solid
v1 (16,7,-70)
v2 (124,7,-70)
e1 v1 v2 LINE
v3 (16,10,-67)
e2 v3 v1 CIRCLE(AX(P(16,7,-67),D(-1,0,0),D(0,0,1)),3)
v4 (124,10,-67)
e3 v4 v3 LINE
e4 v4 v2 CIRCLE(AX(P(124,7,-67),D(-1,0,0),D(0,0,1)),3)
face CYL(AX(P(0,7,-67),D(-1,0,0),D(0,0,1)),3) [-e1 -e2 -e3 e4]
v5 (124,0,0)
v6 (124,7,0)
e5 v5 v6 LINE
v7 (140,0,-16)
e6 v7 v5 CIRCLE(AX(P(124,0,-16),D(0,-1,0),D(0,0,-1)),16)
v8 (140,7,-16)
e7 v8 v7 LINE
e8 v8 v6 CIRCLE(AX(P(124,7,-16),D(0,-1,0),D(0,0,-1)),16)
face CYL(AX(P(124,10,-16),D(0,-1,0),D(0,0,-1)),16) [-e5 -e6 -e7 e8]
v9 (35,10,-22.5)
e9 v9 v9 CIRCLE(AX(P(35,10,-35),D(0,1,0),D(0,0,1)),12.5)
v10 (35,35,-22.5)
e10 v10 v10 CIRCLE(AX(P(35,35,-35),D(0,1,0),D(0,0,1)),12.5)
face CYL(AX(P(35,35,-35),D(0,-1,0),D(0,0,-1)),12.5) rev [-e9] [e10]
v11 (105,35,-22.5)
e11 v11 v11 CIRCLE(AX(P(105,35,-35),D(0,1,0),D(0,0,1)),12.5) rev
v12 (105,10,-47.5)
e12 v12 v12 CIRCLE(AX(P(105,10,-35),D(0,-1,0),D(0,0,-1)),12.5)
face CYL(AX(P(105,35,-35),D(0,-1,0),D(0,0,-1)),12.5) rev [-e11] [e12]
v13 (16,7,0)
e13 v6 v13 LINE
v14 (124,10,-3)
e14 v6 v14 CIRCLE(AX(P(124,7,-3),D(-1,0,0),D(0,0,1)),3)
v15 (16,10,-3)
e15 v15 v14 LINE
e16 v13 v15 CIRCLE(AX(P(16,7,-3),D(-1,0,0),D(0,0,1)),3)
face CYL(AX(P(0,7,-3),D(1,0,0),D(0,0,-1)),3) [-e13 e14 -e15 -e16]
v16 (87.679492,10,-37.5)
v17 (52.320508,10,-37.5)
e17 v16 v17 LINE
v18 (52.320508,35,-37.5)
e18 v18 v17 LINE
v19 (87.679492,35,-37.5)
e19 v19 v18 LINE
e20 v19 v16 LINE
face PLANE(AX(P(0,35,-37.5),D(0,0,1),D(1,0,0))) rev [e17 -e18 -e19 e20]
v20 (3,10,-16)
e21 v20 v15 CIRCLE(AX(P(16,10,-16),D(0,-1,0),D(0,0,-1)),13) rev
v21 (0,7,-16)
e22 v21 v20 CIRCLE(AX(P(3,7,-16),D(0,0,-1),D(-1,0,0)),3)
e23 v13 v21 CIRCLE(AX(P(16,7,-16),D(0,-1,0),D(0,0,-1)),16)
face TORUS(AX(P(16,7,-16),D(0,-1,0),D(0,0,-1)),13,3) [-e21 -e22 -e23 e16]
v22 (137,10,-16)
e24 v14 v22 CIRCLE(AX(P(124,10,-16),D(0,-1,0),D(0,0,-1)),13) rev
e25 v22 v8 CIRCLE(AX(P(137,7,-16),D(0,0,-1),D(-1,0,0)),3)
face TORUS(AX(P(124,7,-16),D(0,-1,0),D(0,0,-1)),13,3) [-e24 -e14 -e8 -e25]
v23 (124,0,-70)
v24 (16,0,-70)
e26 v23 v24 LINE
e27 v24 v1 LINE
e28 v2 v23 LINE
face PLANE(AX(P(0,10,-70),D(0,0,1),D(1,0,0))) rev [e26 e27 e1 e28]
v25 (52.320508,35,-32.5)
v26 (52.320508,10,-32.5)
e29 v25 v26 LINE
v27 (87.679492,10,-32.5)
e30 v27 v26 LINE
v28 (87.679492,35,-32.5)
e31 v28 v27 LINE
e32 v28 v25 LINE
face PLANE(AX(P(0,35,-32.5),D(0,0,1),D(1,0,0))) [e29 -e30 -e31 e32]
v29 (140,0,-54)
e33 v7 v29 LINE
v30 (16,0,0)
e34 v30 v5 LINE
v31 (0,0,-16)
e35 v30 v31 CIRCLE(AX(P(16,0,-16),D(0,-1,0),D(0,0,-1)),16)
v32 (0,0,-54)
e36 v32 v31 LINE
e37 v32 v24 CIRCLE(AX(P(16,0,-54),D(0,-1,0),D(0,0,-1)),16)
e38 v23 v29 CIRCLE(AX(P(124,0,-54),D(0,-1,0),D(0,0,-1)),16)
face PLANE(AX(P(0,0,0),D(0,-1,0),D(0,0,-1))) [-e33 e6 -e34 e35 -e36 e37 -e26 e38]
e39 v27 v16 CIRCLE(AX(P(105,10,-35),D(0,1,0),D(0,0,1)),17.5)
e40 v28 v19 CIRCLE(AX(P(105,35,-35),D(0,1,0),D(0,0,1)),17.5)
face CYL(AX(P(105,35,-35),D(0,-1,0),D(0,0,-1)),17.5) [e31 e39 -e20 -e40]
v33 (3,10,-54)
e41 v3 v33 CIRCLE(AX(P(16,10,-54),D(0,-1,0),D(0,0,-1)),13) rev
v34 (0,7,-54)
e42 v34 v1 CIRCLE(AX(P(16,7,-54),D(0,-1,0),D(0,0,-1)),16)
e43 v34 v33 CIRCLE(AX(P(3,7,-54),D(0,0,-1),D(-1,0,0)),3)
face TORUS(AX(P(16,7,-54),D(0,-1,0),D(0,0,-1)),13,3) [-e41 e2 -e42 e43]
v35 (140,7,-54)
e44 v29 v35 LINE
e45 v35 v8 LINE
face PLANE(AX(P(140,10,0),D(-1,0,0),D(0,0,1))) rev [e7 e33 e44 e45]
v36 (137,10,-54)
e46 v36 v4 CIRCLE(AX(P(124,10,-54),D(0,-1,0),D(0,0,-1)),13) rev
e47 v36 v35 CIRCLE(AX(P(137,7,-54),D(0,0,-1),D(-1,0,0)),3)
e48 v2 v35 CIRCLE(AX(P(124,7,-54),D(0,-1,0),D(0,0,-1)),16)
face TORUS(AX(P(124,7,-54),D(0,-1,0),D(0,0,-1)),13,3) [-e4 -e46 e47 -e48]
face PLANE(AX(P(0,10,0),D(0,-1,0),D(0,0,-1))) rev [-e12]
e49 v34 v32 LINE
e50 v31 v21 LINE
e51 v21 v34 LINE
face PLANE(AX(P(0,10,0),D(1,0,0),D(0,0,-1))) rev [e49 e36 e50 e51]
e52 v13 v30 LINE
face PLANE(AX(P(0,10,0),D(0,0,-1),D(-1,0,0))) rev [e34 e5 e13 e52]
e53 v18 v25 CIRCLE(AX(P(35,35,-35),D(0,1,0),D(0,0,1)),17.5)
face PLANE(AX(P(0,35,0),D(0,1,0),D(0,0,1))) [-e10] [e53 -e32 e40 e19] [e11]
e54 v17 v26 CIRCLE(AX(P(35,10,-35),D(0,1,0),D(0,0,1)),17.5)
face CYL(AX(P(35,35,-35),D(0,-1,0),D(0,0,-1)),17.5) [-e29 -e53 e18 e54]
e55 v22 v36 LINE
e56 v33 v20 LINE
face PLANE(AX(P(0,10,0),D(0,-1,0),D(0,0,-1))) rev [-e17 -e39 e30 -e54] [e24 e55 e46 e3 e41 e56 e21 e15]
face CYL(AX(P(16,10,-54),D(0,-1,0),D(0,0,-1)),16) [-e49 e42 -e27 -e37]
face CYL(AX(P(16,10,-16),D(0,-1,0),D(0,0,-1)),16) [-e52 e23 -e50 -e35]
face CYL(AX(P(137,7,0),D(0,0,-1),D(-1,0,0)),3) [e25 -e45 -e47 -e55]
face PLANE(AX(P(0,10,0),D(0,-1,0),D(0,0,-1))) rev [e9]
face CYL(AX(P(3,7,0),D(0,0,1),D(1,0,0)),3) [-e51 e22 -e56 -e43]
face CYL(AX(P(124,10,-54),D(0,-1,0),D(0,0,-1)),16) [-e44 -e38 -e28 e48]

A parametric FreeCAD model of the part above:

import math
import FreeCAD as App
import Part
import Sketcher

V = App.Vector
Q = App.Units.Quantity


def edges_at(feature, points):
    """Names of the edges that pass closest to the given points."""
    edges = feature.Shape.Edges
    near = lambda p: min(range(len(edges)), key=lambda i: edges[i].distToShape(Part.Vertex(*p))[0])
    return sorted({f"Edge{near(p) + 1}" for p in points})

doc = App.newDocument("Part")
body = doc.addObject("PartDesign::Body", "Body")

# Sketch on XZ plane
sketch1 = body.newObject("Sketcher::SketchObject", "Sketch")
sketch1.AttachmentSupport = (doc.getObject("XZ_Plane"), [""])
sketch1.MapMode = "FlatFace"
sketch1.addGeometry([
    Part.LineSegment(V(0, -70, 0), V(0, 0, 0)),
    Part.LineSegment(V(0, 0, 0), V(140, 0, 0)),
    Part.LineSegment(V(140, 0, 0), V(140, -70, 0)),
    Part.LineSegment(V(140, -70, 0), V(0, -70, 0)),
], False)
sketch1.addConstraint([
    Sketcher.Constraint("Coincident", 0, 2, 1, 1),
    Sketcher.Constraint("Coincident", 1, 2, 2, 1),
    Sketcher.Constraint("Coincident", 2, 2, 3, 1),
    Sketcher.Constraint("Coincident", 3, 2, 0, 1),
    Sketcher.Constraint("Vertical", 0),
    Sketcher.Constraint("Horizontal", 1),
    Sketcher.Constraint("Vertical", 2),
    Sketcher.Constraint("Horizontal", 3),
    Sketcher.Constraint("Coincident", 0, 2, -1, 1),
    Sketcher.Constraint("DistanceX", 1, 1, 1, 2, Q("140 mm")),
    Sketcher.Constraint("DistanceY", 0, 1, 0, 2, Q("70 mm")),
])
pad1 = body.newObject("PartDesign::Pad", "Pad")
pad1.Profile = sketch1
pad1.Length = 10
pad1.Reversed = True

# Sketch on XZ plane
sketch2 = body.newObject("Sketcher::SketchObject", "Sketch001")
sketch2.AttachmentSupport = (doc.getObject("XZ_Plane"), [""])
sketch2.MapMode = "FlatFace"
sketch2.AttachmentOffset = App.Placement(V(0, 0, -10), App.Rotation())
sketch2.addGeometry([
    Part.LineSegment(V(52.320508, -32.5, 0), V(87.679492, -32.5, 0)),  # 0
    Part.ArcOfCircle(Part.Circle(V(105, -35, 0), V(0, 0, 1), 17.5), math.radians(0), math.radians(171.786789)),  # 1
    Part.ArcOfCircle(Part.Circle(V(105, -35, 0), V(0, 0, 1), 17.5), math.radians(-171.786789), math.radians(0)),  # 2
    Part.LineSegment(V(87.679492, -37.5, 0), V(52.320508, -37.5, 0)),  # 3
    Part.ArcOfCircle(Part.Circle(V(35, -35, 0), V(0, 0, 1), 17.5), math.radians(8.213211), math.radians(351.786789)),  # 4
    Part.ArcOfCircle(Part.Circle(V(35, -35, 0), V(0, 0, 1), 12.5), math.radians(0), math.radians(11.536959)),  # 5
    Part.ArcOfCircle(Part.Circle(V(35, -35, 0), V(0, 0, 1), 12.5), math.radians(11.536959), math.radians(348.463041)),  # 6
    Part.ArcOfCircle(Part.Circle(V(35, -35, 0), V(0, 0, 1), 12.5), math.radians(-11.536959), math.radians(0)),  # 7
    Part.ArcOfCircle(Part.Circle(V(105, -35, 0), V(0, 0, 1), 12.5), math.radians(168.463041), math.radians(191.536959)),  # 8
    Part.ArcOfCircle(Part.Circle(V(105, -35, 0), V(0, 0, 1), 12.5), math.radians(-168.463041), math.radians(0)),  # 9
    Part.ArcOfCircle(Part.Circle(V(105, -35, 0), V(0, 0, 1), 12.5), math.radians(0), math.radians(168.463041)),  # 10
], False)
sketch2.addConstraint([
    Sketcher.Constraint("Coincident", 0, 2, 1, 2),
    Sketcher.Constraint("Tangent", 1, 1, 2, 2),
    Sketcher.Constraint("Coincident", 2, 1, 3, 1),
    Sketcher.Constraint("Coincident", 3, 2, 4, 2),
    Sketcher.Constraint("Coincident", 4, 1, 0, 1),
    Sketcher.Constraint("Tangent", 5, 2, 6, 1),
    Sketcher.Constraint("Tangent", 6, 2, 7, 1),
    Sketcher.Constraint("Tangent", 7, 2, 5, 1),
    Sketcher.Constraint("Tangent", 8, 2, 9, 1),
    Sketcher.Constraint("Tangent", 9, 2, 10, 1),
    Sketcher.Constraint("Tangent", 10, 2, 8, 1),
    Sketcher.Constraint("Horizontal", 0),
    Sketcher.Constraint("Horizontal", 3),
    Sketcher.Constraint("Coincident", 5, 3, 4, 3),
    Sketcher.Constraint("Coincident", 8, 3, 1, 3),
    Sketcher.Constraint("Equal", 1, 2),
    Sketcher.Constraint("Equal", 2, 4),
    Sketcher.Constraint("Equal", 7, 8),
    Sketcher.Constraint("Horizontal", 2, 3, 4, 3),
    Sketcher.Constraint("Horizontal", 10, 3, 1, 1),
    Sketcher.Constraint("Horizontal", 4, 1, 5, 2),
    Sketcher.Constraint("Horizontal", 3, 2, 6, 2),
    Sketcher.Constraint("Horizontal", 1, 1, 7, 2),
    Sketcher.Constraint("Horizontal", 6, 2, 8, 2),
    Sketcher.Constraint("Horizontal", 7, 2, 9, 2),
    Sketcher.Constraint("Horizontal", 5, 2, 10, 2),
    Sketcher.Constraint("Vertical", 0, 2, 2, 1),
    Sketcher.Constraint("Radius", 1, Q("17.5 mm")),
    Sketcher.Constraint("Radius", 5, Q("12.5 mm")),
    Sketcher.Constraint("DistanceX", -1, 1, 1, 3, Q("105 mm")),
    Sketcher.Constraint("DistanceY", 1, 3, -1, 1, Q("35 mm")),
    Sketcher.Constraint("DistanceX", -1, 1, 4, 3, Q("35 mm")),
    Sketcher.Constraint("DistanceY", 2, 1, 0, 2, Q("5 mm")),
])
pad2 = body.newObject("PartDesign::Pad", "Pad001")
pad2.Profile = sketch2
pad2.Length = 25
pad2.Reversed = True
doc.recompute()

fillet = body.newObject("PartDesign::Fillet", "Fillet")
fillet.Base = (pad2, edges_at(pad2, [
    (0, 5, -70),
    (140, 5, -70),
    (140, 5, 0),
    (0, 5, 0),
]))
fillet.Radius = 16
doc.recompute()

fillet2 = body.newObject("PartDesign::Fillet", "Fillet001")
fillet2.Base = (fillet, edges_at(fillet, [
    (0, 10, -35),
    (70, 10, -70),
    (70, 10, 0),
    (140, 10, -35),
    (4.686, 10, -4.686),
    (135.314, 10, -4.686),
    (135.314, 10, -65.314),
    (4.686, 10, -65.314),
]))
fillet2.Radius = 3

doc.recompute()
